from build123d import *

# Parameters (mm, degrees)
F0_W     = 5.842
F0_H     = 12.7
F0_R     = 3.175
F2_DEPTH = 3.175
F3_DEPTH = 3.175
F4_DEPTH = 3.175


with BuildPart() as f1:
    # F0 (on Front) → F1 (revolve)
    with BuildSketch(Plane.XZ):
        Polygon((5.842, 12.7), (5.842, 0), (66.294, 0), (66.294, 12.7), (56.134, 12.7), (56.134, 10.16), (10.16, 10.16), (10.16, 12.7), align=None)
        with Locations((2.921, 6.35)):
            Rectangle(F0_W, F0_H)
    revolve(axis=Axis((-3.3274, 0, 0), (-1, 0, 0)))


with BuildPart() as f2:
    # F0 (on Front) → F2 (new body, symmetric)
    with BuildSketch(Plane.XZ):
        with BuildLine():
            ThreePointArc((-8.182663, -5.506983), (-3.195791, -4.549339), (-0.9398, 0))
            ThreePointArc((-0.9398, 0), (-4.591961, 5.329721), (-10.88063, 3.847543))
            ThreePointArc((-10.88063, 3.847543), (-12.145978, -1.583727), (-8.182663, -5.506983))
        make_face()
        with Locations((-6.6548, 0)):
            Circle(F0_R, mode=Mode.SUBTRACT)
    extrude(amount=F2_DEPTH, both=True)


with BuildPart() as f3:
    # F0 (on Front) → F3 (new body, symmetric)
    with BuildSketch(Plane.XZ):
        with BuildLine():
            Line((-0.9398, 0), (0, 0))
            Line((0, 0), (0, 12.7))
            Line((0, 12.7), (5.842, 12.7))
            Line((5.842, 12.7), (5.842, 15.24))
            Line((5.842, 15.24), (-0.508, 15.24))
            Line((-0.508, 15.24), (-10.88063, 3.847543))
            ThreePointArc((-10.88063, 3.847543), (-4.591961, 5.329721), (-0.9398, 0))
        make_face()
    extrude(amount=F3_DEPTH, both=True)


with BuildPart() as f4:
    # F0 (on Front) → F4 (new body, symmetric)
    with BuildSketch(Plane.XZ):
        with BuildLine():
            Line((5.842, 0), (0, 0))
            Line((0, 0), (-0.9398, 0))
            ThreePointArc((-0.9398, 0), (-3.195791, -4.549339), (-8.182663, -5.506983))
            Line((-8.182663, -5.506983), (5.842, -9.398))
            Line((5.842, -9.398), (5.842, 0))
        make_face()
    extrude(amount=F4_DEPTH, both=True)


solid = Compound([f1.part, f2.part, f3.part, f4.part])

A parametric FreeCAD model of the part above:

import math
import FreeCAD as App
import Part
import Sketcher
Q = App.Units.Quantity

doc = App.newDocument("Part")
body = doc.addObject("PartDesign::Body", "Body")

sketch1 = body.newObject("Sketcher::SketchObject", "Sketch")
sketch1.AttachmentSupport = (doc.getObject("XZ_Plane"), [""])
sketch1.MapMode = "FlatFace"
sketch1.addGeometry(Part.LineSegment(App.Vector(66.3, 0, 0), App.Vector(66.3, 12.7, 0)), False)
sketch1.addGeometry(Part.LineSegment(App.Vector(66.3, 12.7, 0), App.Vector(56.1, 12.7, 0)), False)
sketch1.addGeometry(Part.LineSegment(App.Vector(56.1, 12.7, 0), App.Vector(56.1, 10.2, 0)), False)
sketch1.addGeometry(Part.LineSegment(App.Vector(56.1, 10.2, 0), App.Vector(10.2, 10.2, 0)), False)
sketch1.addGeometry(Part.LineSegment(App.Vector(10.2, 10.2, 0), App.Vector(10.2, 12.7, 0)), False)
sketch1.addGeometry(Part.LineSegment(App.Vector(10.2, 12.7, 0), App.Vector(0, 12.7, 0)), False)
sketch1.addGeometry(Part.LineSegment(App.Vector(0, 12.7, 0), App.Vector(0, 0, 0)), False)
sketch1.addGeometry(Part.LineSegment(App.Vector(0, 0, 0), App.Vector(66.3, 0, 0)), False)
sketch1.addConstraint(Sketcher.Constraint("Coincident", 0, 2, 1, 1))
sketch1.addConstraint(Sketcher.Constraint("Coincident", 1, 2, 2, 1))
sketch1.addConstraint(Sketcher.Constraint("Coincident", 2, 2, 3, 1))
sketch1.addConstraint(Sketcher.Constraint("Coincident", 3, 2, 4, 1))
sketch1.addConstraint(Sketcher.Constraint("Coincident", 4, 2, 5, 1))
sketch1.addConstraint(Sketcher.Constraint("Coincident", 5, 2, 6, 1))
sketch1.addConstraint(Sketcher.Constraint("Coincident", 6, 2, 7, 1))
sketch1.addConstraint(Sketcher.Constraint("Coincident", 7, 2, 0, 1))
sketch1.addConstraint(Sketcher.Constraint("Vertical", 0))
sketch1.addConstraint(Sketcher.Constraint("Horizontal", 1))
sketch1.addConstraint(Sketcher.Constraint("Vertical", 2))
sketch1.addConstraint(Sketcher.Constraint("Horizontal", 3))
sketch1.addConstraint(Sketcher.Constraint("Vertical", 4))
sketch1.addConstraint(Sketcher.Constraint("Horizontal", 5))
sketch1.addConstraint(Sketcher.Constraint("Vertical", 6))
sketch1.addConstraint(Sketcher.Constraint("Horizontal", 7))
sketch1.addConstraint(Sketcher.Constraint("Coincident", 6, 2, -1, 1))
sketch1.addConstraint(Sketcher.Constraint("Horizontal", 1, 2, 4, 2))
sketch1.addConstraint(Sketcher.Constraint("Equal", 1, 5))
sketch1.addConstraint(Sketcher.Constraint("DistanceX", 1, 2, 1, 1, Q("0.4 in")))
sketch1.addConstraint(Sketcher.Constraint("DistanceY", 0, 1, 0, 2, Q("0.5 in")))
sketch1.addConstraint(Sketcher.Constraint("DistanceY", 2, 2, 2, 1, Q("0.1 in")))
sketch1.addConstraint(Sketcher.Constraint("DistanceX", 3, 2, 3, 1, Q("1.81 in")))
revolution = body.newObject("PartDesign::Revolution", "Revolution")
revolution.Profile = sketch1
revolution.ReferenceAxis = (sketch1, ["H_Axis"])
revolution.Angle = 360
body2 = doc.addObject("PartDesign::Body", "Body001")

sketch2 = body2.newObject("Sketcher::SketchObject", "Sketch001")
sketch2.AttachmentSupport = (doc.getObject("XZ_Plane001"), [""])
sketch2.MapMode = "FlatFace"
sketch2.addGeometry(Part.ArcOfCircle(Part.Circle(App.Vector(-6.7, 0, 0), App.Vector(0, 0, 1), 5.7), math.radians(-106), math.radians(0)), False)
sketch2.addGeometry(Part.ArcOfCircle(Part.Circle(App.Vector(-6.7, 0, 0), App.Vector(0, 0, 1), 5.7), math.radians(0), math.radians(138)), False)
sketch2.addGeometry(Part.ArcOfCircle(Part.Circle(App.Vector(-6.7, 0, 0), App.Vector(0, 0, 1), 5.7), math.radians(138), math.radians(254)), False)
sketch2.addGeometry(Part.Circle(App.Vector(-6.7, 0, 0), App.Vector(0, 0, 1), 3.2), False)
sketch2.addConstraint(Sketcher.Constraint("Tangent", 0, 2, 1, 1))
sketch2.addConstraint(Sketcher.Constraint("Tangent", 1, 2, 2, 1))
sketch2.addConstraint(Sketcher.Constraint("Tangent", 2, 2, 0, 1))
sketch2.addConstraint(Sketcher.Constraint("Coincident", 3, 3, 0, 3))
sketch2.addConstraint(Sketcher.Constraint("PointOnObject", 0, 3, -1))
sketch2.addConstraint(Sketcher.Constraint("PointOnObject", 0, 2, -1))
sketch2.addConstraint(Sketcher.Constraint("Diameter", 3, Q("0.25 in")))
sketch2.addConstraint(Sketcher.Constraint("Radius", 0, Q("0.225 in")))
sketch2.addConstraint(Sketcher.Constraint("DistanceX", 0, 3, -1, 1, Q("0.262 in")))
sketch2.addConstraint(Sketcher.Constraint("DistanceX", 1, 2, -1, 1, Q("10.88063 mm")))
sketch2.addConstraint(Sketcher.Constraint("DistanceX", 2, 2, -1, 1, Q("8.182663 mm")))
pad1 = body2.newObject("PartDesign::Pad", "Pad")
pad1.Profile = sketch2
pad1.Length = Q("0.25 in")
pad1.Midplane = True
body3 = doc.addObject("PartDesign::Body", "Body002")

sketch3 = body3.newObject("Sketcher::SketchObject", "Sketch002")
sketch3.AttachmentSupport = (doc.getObject("XZ_Plane002"), [""])
sketch3.MapMode = "FlatFace"
sketch3.addGeometry(Part.LineSegment(App.Vector(-0.9, 0, 0), App.Vector(0, 0, 0)), False)
sketch3.addGeometry(Part.LineSegment(App.Vector(0, 0, 0), App.Vector(0, 12.7, 0)), False)
sketch3.addGeometry(Part.LineSegment(App.Vector(0, 12.7, 0), App.Vector(5.8, 12.7, 0)), False)
sketch3.addGeometry(Part.LineSegment(App.Vector(5.8, 12.7, 0), App.Vector(5.8, 15.2, 0)), False)
sketch3.addGeometry(Part.LineSegment(App.Vector(5.8, 15.2, 0), App.Vector(-0.5, 15.2, 0)), False)
sketch3.addGeometry(Part.LineSegment(App.Vector(-0.5, 15.2, 0), App.Vector(-10.9, 3.8, 0)), False)
sketch3.addGeometry(Part.ArcOfCircle(Part.Circle(App.Vector(-6.7, 0, 0), App.Vector(0, 0, 1), 5.7), math.radians(0), math.radians(138)), False)
sketch3.addConstraint(Sketcher.Constraint("Coincident", 0, 2, 1, 1))
sketch3.addConstraint(Sketcher.Constraint("Coincident", 1, 2, 2, 1))
sketch3.addConstraint(Sketcher.Constraint("Coincident", 2, 2, 3, 1))
sketch3.addConstraint(Sketcher.Constraint("Coincident", 3, 2, 4, 1))
sketch3.addConstraint(Sketcher.Constraint("Coincident", 4, 2, 5, 1))
sketch3.addConstraint(Sketcher.Constraint("Tangent", 5, 2, 6, 2))
sketch3.addConstraint(Sketcher.Constraint("Coincident", 6, 1, 0, 1))
sketch3.addConstraint(Sketcher.Constraint("Horizontal", 0))
sketch3.addConstraint(Sketcher.Constraint("Vertical", 1))
sketch3.addConstraint(Sketcher.Constraint("Horizontal", 2))
sketch3.addConstraint(Sketcher.Constraint("Vertical", 3))
sketch3.addConstraint(Sketcher.Constraint("Horizontal", 4))
sketch3.addConstraint(Sketcher.Constraint("Coincident", 0, 2, -1, 1))
sketch3.addConstraint(Sketcher.Constraint("PointOnObject", 6, 3, -1))
sketch3.addConstraint(Sketcher.Constraint("DistanceY", 1, 1, 1, 2, Q("0.5 in")))
sketch3.addConstraint(Sketcher.Constraint("DistanceY", 3, 1, 3, 2, Q("0.1 in")))
sketch3.addConstraint(Sketcher.Constraint("Radius", 6, Q("0.225 in")))
sketch3.addConstraint(Sketcher.Constraint("DistanceX", 2, 1, 2, 2, Q("0.23 in")))
sketch3.addConstraint(Sketcher.Constraint("DistanceX", 4, 2, 4, 1, Q("0.25 in")))
sketch3.addConstraint(Sketcher.Constraint("DistanceX", 0, 1, 0, 2, Q("0.037 in")))
pad2 = body3.newObject("PartDesign::Pad", "Pad001")
pad2.Profile = sketch3
pad2.Length = Q("0.25 in")
pad2.Midplane = True
body4 = doc.addObject("PartDesign::Body", "Body003")

sketch4 = body4.newObject("Sketcher::SketchObject", "Sketch003")
sketch4.AttachmentSupport = (doc.getObject("XZ_Plane003"), [""])
sketch4.MapMode = "FlatFace"
sketch4.addGeometry(Part.LineSegment(App.Vector(6, 0, 0), App.Vector(-1, 0, 0)), False)
sketch4.addGeometry(Part.ArcOfCircle(Part.Circle(App.Vector(-7, 0, 0), App.Vector(0, 0, 1), 6), math.radians(-106), math.radians(0)), False)
sketch4.addGeometry(Part.LineSegment(App.Vector(-8, -6, 0), App.Vector(6, -9, 0)), False)
sketch4.addGeometry(Part.LineSegment(App.Vector(6, -9, 0), App.Vector(6, 0, 0)), False)
sketch4.addConstraint(Sketcher.Constraint("Coincident", 0, 2, 1, 2))
sketch4.addConstraint(Sketcher.Constraint("Tangent", 1, 1, 2, 1))
sketch4.addConstraint(Sketcher.Constraint("Coincident", 2, 2, 3, 1))
sketch4.addConstraint(Sketcher.Constraint("Coincident", 3, 2, 0, 1))
sketch4.addConstraint(Sketcher.Constraint("Horizontal", 0))
sketch4.addConstraint(Sketcher.Constraint("Vertical", 3))
sketch4.addConstraint(Sketcher.Constraint("PointOnObject", 1, 3, -1))
sketch4.addConstraint(Sketcher.Constraint("PointOnObject", 0, 2, -1))
sketch4.addConstraint(Sketcher.Constraint("Radius", 1, Q("0.225 in")))
sketch4.addConstraint(Sketcher.Constraint("DistanceY", 3, 1, 3, 2, Q("0.37 in")))
sketch4.addConstraint(Sketcher.Constraint("DistanceX", 0, 2, 0, 1, Q("0.267 in")))
sketch4.addConstraint(Sketcher.Constraint("DistanceX", -1, 1, 2, 2, Q("0.23 in")))
pad3 = body4.newObject("PartDesign::Pad", "Pad002")
pad3.Profile = sketch4
pad3.Length = Q("0.25 in")
pad3.Midplane = True

doc.recompute()
